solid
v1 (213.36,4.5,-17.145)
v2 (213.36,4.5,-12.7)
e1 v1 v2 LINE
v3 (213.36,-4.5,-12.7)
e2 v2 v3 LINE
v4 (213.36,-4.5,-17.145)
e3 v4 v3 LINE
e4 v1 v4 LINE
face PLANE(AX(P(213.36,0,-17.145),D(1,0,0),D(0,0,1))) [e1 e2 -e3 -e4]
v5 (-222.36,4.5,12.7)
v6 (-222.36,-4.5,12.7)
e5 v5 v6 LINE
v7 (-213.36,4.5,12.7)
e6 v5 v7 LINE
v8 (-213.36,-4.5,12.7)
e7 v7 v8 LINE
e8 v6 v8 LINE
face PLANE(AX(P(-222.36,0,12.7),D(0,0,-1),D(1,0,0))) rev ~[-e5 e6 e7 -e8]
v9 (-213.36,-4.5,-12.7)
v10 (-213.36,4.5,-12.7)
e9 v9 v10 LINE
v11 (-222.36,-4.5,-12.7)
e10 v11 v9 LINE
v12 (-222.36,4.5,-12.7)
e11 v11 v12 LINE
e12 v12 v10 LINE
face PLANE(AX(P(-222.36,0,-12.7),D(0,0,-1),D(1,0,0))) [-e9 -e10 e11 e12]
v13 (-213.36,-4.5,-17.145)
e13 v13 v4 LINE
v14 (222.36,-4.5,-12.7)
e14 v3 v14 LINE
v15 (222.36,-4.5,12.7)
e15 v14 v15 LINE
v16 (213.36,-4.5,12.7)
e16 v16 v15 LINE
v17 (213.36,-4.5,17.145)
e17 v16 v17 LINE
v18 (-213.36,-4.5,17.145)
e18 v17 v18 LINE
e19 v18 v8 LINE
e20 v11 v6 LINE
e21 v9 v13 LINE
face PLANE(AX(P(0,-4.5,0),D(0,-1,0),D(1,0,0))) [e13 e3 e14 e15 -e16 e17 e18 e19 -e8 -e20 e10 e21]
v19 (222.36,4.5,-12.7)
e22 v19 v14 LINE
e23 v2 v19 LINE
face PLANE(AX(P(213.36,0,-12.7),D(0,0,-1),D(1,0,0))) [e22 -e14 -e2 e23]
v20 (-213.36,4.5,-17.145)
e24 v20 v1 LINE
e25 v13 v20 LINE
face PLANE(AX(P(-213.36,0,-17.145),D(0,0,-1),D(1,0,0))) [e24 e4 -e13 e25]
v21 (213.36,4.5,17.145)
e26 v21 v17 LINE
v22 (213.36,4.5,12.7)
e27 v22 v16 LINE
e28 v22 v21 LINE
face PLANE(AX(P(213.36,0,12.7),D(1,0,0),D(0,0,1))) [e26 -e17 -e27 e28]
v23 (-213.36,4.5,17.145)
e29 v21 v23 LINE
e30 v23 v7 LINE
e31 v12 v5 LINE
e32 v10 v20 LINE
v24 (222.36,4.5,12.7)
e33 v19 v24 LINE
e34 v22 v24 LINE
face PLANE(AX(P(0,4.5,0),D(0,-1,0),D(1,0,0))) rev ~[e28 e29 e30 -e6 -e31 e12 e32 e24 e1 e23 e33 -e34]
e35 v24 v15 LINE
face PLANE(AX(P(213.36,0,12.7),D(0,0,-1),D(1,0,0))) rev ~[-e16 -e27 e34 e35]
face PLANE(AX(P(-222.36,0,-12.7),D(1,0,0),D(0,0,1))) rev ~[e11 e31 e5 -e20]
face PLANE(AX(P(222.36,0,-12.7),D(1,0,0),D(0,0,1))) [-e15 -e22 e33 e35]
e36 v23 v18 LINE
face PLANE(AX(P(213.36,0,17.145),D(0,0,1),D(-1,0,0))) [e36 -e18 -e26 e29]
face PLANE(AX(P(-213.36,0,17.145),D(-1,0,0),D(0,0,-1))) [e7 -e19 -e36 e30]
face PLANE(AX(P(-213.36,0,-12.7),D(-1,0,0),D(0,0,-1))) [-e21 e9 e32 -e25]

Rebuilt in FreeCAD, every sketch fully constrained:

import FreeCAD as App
import Part
import Sketcher
Q = App.Units.Quantity


def add_polygon(sketch, points):
    """Adds a closed chain of lines whose ends are joined by coincident constraints."""
    first, n = sketch.GeometryCount, len(points)
    for a, b in zip(points, points[1:] + points[:1]):
        sketch.addGeometry(Part.LineSegment(App.Vector(*a, 0), App.Vector(*b, 0)), False)
    for i in range(n):
        sketch.addConstraint(Sketcher.Constraint("Coincident", first + i, 2, first + (i + 1) % n, 1))

doc = App.newDocument("Part")
params = doc.addObject("Spreadsheet::Sheet", "Params")
for row, (alias, value) in enumerate([
    ("sketch1_height", "1 in"),
    ("sketch1_width", "16.8 in"),
    ("sketch1_height2", "0.175 in"),
    ("pad1_length", "9 mm"),
], start=1):
    params.set(f"A{row}", alias)
    params.set(f"B{row}", "=" + value)
    params.setAlias(f"B{row}", alias)

body = doc.addObject("PartDesign::Body", "Body")

sketch1 = doc.addObject("Sketcher::SketchObject", "Sketch")
body.addObject(sketch1)
sketch1.AttachmentSupport = (doc.XZ_Plane, [""])
sketch1.MapMode = "FlatFace"
add_polygon(sketch1, [(-213.4, -17.1), (213.4, -17.1), (213.4, -12.7), (222.4, -12.7), (222.4, 12.7), (213.4, 12.7), (213.4, 17.1), (-213.4, 17.1), (-213.4, 12.7), (-222.4, 12.7), (-222.4, -12.7), (-213.4, -12.7)])
sketch1.addConstraint(Sketcher.Constraint("Horizontal", 0))
sketch1.addConstraint(Sketcher.Constraint("Vertical", 1))
sketch1.addConstraint(Sketcher.Constraint("Horizontal", 2))
sketch1.addConstraint(Sketcher.Constraint("Vertical", 3))
sketch1.addConstraint(Sketcher.Constraint("Horizontal", 4))
sketch1.addConstraint(Sketcher.Constraint("Vertical", 5))
sketch1.addConstraint(Sketcher.Constraint("Horizontal", 6))
sketch1.addConstraint(Sketcher.Constraint("Vertical", 7))
sketch1.addConstraint(Sketcher.Constraint("Horizontal", 8))
sketch1.addConstraint(Sketcher.Constraint("Vertical", 9))
sketch1.addConstraint(Sketcher.Constraint("Horizontal", 10))
sketch1.addConstraint(Sketcher.Constraint("Vertical", 11))
sketch1.addConstraint(Sketcher.Constraint("Symmetric", 0, 2, 6, 2, -1, 1))
sketch1.addConstraint(Sketcher.Constraint("Symmetric", 2, 2, 8, 2, -1, 1))
sketch1.addConstraint(Sketcher.Constraint("Symmetric", 4, 2, 10, 2, -1, 1))
sketch1.addConstraint(Sketcher.Constraint("Symmetric", 4, 2, 7, 2, -2))
sketch1.addConstraint(Sketcher.Constraint("DistanceY", 3, 1, 3, 2, Q("1 in")))
sketch1.addConstraint(Sketcher.Constraint("DistanceX", 0, 1, 0, 2, Q("16.8 in")))
sketch1.addConstraint(Sketcher.Constraint("DistanceY", 1, 1, 1, 2, Q("0.175 in")))
sketch1.addConstraint(Sketcher.Constraint("DistanceX", 2, 1, 2, 2, Q("9 mm")))
sketch1.setExpression("Constraints[28]", "Params.sketch1_height")
sketch1.setExpression("Constraints[29]", "Params.sketch1_width")
sketch1.setExpression("Constraints[30]", "Params.sketch1_height2")
pad1 = doc.addObject("PartDesign::Pad", "Pad")
body.addObject(pad1)
pad1.Profile = sketch1
pad1.setExpression("Length", "Params.pad1_length")
pad1.Midplane = True

doc.recompute()
